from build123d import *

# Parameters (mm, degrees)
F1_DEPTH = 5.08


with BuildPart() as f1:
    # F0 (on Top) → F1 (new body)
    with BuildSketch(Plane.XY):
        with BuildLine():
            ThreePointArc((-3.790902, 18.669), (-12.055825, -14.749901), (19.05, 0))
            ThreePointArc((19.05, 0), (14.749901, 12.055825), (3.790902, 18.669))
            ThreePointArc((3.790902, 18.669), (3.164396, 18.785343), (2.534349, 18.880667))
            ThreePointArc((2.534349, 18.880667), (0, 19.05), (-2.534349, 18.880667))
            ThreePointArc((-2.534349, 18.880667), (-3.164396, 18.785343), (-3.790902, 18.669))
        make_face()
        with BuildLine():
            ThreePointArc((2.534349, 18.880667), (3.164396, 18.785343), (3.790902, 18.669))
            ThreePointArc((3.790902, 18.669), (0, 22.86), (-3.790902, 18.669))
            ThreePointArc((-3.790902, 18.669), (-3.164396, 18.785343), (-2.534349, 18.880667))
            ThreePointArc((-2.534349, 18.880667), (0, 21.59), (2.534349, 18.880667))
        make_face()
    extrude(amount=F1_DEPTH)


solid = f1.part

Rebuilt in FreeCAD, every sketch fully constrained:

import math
import FreeCAD as App
import Part
import Sketcher
Q = App.Units.Quantity

doc = App.newDocument("Part")
body = doc.addObject("PartDesign::Body", "Body")

sketch1 = doc.addObject("Sketcher::SketchObject", "Sketch")
body.addObject(sketch1)
sketch1.AttachmentSupport = (doc.XY_Plane, [""])
sketch1.MapMode = "FlatFace"
sketch1.addGeometry(Part.ArcOfCircle(Part.Circle(App.Vector(0, 0, 0), App.Vector(0, 0, 1), 19), math.radians(101), math.radians(360)), False)
sketch1.addGeometry(Part.ArcOfCircle(Part.Circle(App.Vector(0, 0, 0), App.Vector(0, 0, 1), 19.1), math.radians(0), math.radians(79)), False)
sketch1.addGeometry(Part.ArcOfCircle(Part.Circle(App.Vector(0, 19.1, 0), App.Vector(0, 0, 1), 3.8), math.radians(-6), math.radians(186)), False)
sketch1.addGeometry(Part.ArcOfCircle(Part.Circle(App.Vector(0, 0, 0), App.Vector(0, 0, 1), 19.1), math.radians(82.35), math.radians(97.65)), False)
sketch1.addGeometry(Part.ArcOfCircle(Part.Circle(App.Vector(0, 19.1, 0), App.Vector(0, 0, 1), 2.5), math.radians(-4), math.radians(184)), False)
sketch1.addConstraint(Sketcher.Constraint("Tangent", 0, 2, 1, 1))
sketch1.addConstraint(Sketcher.Constraint("Coincident", 1, 2, 2, 1))
sketch1.addConstraint(Sketcher.Constraint("Coincident", 2, 2, 0, 1))
sketch1.addConstraint(Sketcher.Constraint("Coincident", 3, 1, 4, 1))
sketch1.addConstraint(Sketcher.Constraint("Coincident", 4, 2, 3, 2))
sketch1.addConstraint(Sketcher.Constraint("Coincident", 0, 3, -1, 1))
sketch1.addConstraint(Sketcher.Constraint("Coincident", 4, 3, 2, 3))
sketch1.addConstraint(Sketcher.Constraint("Equal", 0, 1))
sketch1.addConstraint(Sketcher.Constraint("Symmetric", 3, 1, 4, 2, -2))
sketch1.addConstraint(Sketcher.Constraint("PointOnObject", 0, 2, -1))
sketch1.addConstraint(Sketcher.Constraint("Radius", 4, Q("0.1 in")))
sketch1.addConstraint(Sketcher.Constraint("Radius", 0, Q("0.75 in")))
sketch1.addConstraint(Sketcher.Constraint("Radius", 2, Q("0.15 in")))
sketch1.addConstraint(Sketcher.Constraint("DistanceY", -1, 1, 2, 3, Q("0.75 in")))
sketch1.addConstraint(Sketcher.Constraint("Radius", 3, Q("19.050033 mm")))
sketch1.addConstraint(Sketcher.Constraint("DistanceX", 4, 2, 3, 1, Q("5.068698 mm")))
pad1 = doc.addObject("PartDesign::Pad", "Pad")
body.addObject(pad1)
pad1.Profile = sketch1
pad1.Length = Q("0.2 in")

doc.recompute()
